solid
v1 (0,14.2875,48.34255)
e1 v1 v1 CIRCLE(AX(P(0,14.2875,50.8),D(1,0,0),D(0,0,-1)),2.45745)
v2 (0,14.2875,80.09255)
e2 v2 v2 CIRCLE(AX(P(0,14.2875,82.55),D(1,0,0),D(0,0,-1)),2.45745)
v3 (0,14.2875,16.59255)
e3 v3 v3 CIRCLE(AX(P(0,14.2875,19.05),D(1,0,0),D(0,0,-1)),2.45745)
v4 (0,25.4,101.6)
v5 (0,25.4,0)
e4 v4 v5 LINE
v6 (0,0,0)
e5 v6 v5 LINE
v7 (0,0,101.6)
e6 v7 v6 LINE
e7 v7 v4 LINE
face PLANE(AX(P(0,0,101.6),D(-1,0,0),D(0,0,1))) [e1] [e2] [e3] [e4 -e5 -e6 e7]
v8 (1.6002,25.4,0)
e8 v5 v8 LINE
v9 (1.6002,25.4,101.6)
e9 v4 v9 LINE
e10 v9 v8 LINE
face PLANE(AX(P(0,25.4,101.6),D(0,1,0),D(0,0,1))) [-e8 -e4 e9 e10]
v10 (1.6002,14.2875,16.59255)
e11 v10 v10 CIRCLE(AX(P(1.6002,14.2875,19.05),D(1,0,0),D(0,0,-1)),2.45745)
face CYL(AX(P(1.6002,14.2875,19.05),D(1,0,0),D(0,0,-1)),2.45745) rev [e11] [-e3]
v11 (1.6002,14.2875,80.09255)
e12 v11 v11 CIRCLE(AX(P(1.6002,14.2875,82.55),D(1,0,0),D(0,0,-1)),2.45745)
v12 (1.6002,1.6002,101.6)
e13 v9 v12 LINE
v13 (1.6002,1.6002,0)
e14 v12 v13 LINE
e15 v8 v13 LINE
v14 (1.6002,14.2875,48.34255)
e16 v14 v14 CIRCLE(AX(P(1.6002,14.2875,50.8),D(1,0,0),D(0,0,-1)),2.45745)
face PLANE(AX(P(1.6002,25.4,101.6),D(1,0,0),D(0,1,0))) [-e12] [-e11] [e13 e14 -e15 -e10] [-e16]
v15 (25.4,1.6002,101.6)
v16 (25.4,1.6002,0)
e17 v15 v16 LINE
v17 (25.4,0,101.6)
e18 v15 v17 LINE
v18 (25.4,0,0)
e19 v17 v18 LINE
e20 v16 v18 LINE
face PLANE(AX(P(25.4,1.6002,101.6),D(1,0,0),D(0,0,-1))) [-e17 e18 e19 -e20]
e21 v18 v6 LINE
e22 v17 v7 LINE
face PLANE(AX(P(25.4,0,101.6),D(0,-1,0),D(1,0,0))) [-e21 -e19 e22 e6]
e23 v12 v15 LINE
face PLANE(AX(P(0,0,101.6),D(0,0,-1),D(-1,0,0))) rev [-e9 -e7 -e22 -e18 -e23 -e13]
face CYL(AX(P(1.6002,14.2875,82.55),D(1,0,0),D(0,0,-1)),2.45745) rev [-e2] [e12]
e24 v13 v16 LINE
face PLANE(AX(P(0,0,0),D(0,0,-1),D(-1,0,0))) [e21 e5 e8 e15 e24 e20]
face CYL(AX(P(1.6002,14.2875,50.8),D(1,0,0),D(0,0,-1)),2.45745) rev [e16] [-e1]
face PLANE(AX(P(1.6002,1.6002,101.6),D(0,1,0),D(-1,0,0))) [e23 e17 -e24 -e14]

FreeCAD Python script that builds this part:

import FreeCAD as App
import Part
import Sketcher
Q = App.Units.Quantity

doc = App.newDocument("Part")
body = doc.addObject("PartDesign::Body", "Body")

sketch1 = doc.addObject("Sketcher::SketchObject", "Sketch")
body.addObject(sketch1)
sketch1.AttachmentSupport = (doc.XY_Plane, [""])
sketch1.MapMode = "FlatFace"
sketch1.addGeometry([
    Part.LineSegment(App.Vector(0, 25.4, 0), App.Vector(0, 0, 0)),
    Part.LineSegment(App.Vector(0, 0, 0), App.Vector(25.4, 0, 0)),
    Part.LineSegment(App.Vector(25.4, 0, 0), App.Vector(25.4, 1.6002, 0)),
    Part.LineSegment(App.Vector(25.4, 1.6002, 0), App.Vector(1.6002, 1.6002, 0)),
    Part.LineSegment(App.Vector(1.6002, 1.6002, 0), App.Vector(1.6002, 25.4, 0)),
    Part.LineSegment(App.Vector(1.6002, 25.4, 0), App.Vector(0, 25.4, 0)),
], False)
sketch1.addConstraint([
    Sketcher.Constraint("Coincident", 0, 2, 1, 1),
    Sketcher.Constraint("Coincident", 1, 2, 2, 1),
    Sketcher.Constraint("Coincident", 2, 2, 3, 1),
    Sketcher.Constraint("Coincident", 3, 2, 4, 1),
    Sketcher.Constraint("Coincident", 4, 2, 5, 1),
    Sketcher.Constraint("Coincident", 5, 2, 0, 1),
    Sketcher.Constraint("Vertical", 0),
    Sketcher.Constraint("Horizontal", 1),
    Sketcher.Constraint("Vertical", 2),
    Sketcher.Constraint("Horizontal", 3),
    Sketcher.Constraint("Vertical", 4),
    Sketcher.Constraint("Horizontal", 5),
    Sketcher.Constraint("Coincident", 0, 2, -1, 1),
    Sketcher.Constraint("Equal", 1, 0),
    Sketcher.Constraint("Equal", 5, 2),
    Sketcher.Constraint("DistanceX", 1, 1, 1, 2, Q("1 in")),
    Sketcher.Constraint("DistanceX", 3, 2, 3, 1, Q("0.937 in")),
])
pad1 = doc.addObject("PartDesign::Pad", "Pad")
body.addObject(pad1)
pad1.Profile = sketch1
pad1.Length = Q("4 in")

sketch2 = doc.addObject("Sketcher::SketchObject", "Sketch001")
body.addObject(sketch2)
sketch2.AttachmentSupport = (doc.YZ_Plane, [""])
sketch2.MapMode = "FlatFace"
sketch2.AttachmentOffset = App.Placement(App.Vector(0, 0, 0.063 * 25.4), App.Rotation())
sketch2.addGeometry([
    Part.Circle(App.Vector(14.2875, 82.55, 0), App.Vector(0, 0, 1), 2.45745),
    Part.Circle(App.Vector(14.2875, 50.8, 0), App.Vector(0, 0, 1), 2.45745),
    Part.Circle(App.Vector(14.2875, 19.05, 0), App.Vector(0, 0, 1), 2.45745),
], False)
sketch2.addConstraint([
    Sketcher.Constraint("Equal", 0, 1),
    Sketcher.Constraint("Equal", 1, 2),
    Sketcher.Constraint("Vertical", 0, 3, 1, 3),
    Sketcher.Constraint("Vertical", 1, 3, 2, 3),
    Sketcher.Constraint("DistanceY", -1, 1, 1, 3, Q("2 in")),
    Sketcher.Constraint("Diameter", 0, Q("0.1935 in")),
    Sketcher.Constraint("DistanceY", 2, 3, 0, 3, Q("2.5 in")),
    Sketcher.Constraint("DistanceY", -1, 1, 0, 3, Q("3.25 in")),
    Sketcher.Constraint("DistanceX", -1, 1, 0, 3, Q("0.5625 in")),
])
doc.recompute()
hole = doc.addObject("PartDesign::Hole", "Hole")
body.addObject(hole)
hole.Profile = sketch2
hole.ThreadType = "None"
hole.Diameter = Q("0.1935 in")
hole.DepthType = "ThroughAll"

doc.recompute()
